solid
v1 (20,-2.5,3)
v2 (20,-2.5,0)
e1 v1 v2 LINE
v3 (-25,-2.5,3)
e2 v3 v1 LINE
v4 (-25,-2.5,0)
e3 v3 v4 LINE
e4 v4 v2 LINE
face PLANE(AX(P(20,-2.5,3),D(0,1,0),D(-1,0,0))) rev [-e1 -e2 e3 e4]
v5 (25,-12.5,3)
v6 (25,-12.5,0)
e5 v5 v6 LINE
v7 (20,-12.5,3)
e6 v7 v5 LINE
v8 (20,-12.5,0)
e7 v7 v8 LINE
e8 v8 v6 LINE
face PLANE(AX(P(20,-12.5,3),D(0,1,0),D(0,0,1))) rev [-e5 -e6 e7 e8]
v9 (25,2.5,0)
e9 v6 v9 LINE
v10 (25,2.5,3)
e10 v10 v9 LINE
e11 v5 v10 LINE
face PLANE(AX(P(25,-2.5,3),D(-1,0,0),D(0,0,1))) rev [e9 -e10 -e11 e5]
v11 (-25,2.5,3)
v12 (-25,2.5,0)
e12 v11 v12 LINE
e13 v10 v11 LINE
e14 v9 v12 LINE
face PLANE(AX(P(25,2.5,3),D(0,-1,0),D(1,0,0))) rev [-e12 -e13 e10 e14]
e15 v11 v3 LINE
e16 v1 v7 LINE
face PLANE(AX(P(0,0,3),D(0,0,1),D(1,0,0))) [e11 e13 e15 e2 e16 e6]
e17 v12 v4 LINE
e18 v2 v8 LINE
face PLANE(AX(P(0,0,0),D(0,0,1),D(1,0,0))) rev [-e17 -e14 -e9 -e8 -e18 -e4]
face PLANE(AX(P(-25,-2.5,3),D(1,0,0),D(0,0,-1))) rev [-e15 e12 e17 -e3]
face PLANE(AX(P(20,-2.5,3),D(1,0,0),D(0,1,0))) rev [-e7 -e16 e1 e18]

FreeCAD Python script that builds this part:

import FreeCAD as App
import Part
import Sketcher
from FreeCAD import Vector

doc = App.newDocument("Part")
body = doc.addObject("PartDesign::Body", "Body")

# Sketch on XY plane
sketch1 = doc.addObject("Sketcher::SketchObject", "Sketch")
body.addObject(sketch1)
sketch1.AttachmentSupport = (doc.XY_Plane, [""])
sketch1.MapMode = "FlatFace"
sketch1.addGeometry(Part.LineSegment(Vector(-25, -2, 0), Vector(20, -2, 0)), False)
sketch1.addGeometry(Part.LineSegment(Vector(20, -2, 0), Vector(20, -12, 0)), False)
sketch1.addGeometry(Part.LineSegment(Vector(20, -12, 0), Vector(25, -12, 0)), False)
sketch1.addGeometry(Part.LineSegment(Vector(25, -12, 0), Vector(25, 2, 0)), False)
sketch1.addGeometry(Part.LineSegment(Vector(25, 2, 0), Vector(-25, 2, 0)), False)
sketch1.addGeometry(Part.LineSegment(Vector(-25, 2, 0), Vector(-25, -2, 0)), False)
sketch1.addConstraint(Sketcher.Constraint("Coincident", 0, 2, 1, 1))
sketch1.addConstraint(Sketcher.Constraint("Coincident", 1, 2, 2, 1))
sketch1.addConstraint(Sketcher.Constraint("Coincident", 2, 2, 3, 1))
sketch1.addConstraint(Sketcher.Constraint("Coincident", 3, 2, 4, 1))
sketch1.addConstraint(Sketcher.Constraint("Coincident", 4, 2, 5, 1))
sketch1.addConstraint(Sketcher.Constraint("Coincident", 5, 2, 0, 1))
sketch1.addConstraint(Sketcher.Constraint("Horizontal", 0))
sketch1.addConstraint(Sketcher.Constraint("Vertical", 1))
sketch1.addConstraint(Sketcher.Constraint("Horizontal", 2))
sketch1.addConstraint(Sketcher.Constraint("Vertical", 3))
sketch1.addConstraint(Sketcher.Constraint("Horizontal", 4))
sketch1.addConstraint(Sketcher.Constraint("Vertical", 5))
sketch1.addConstraint(Sketcher.Constraint("Symmetric", 3, 2, 5, 2, -1, 1))
sketch1.addConstraint(Sketcher.Constraint("Equal", 2, 5))
sketch1.addConstraint(Sketcher.Constraint("DistanceX", 0, 1, 0, 2, 45.0))
sketch1.addConstraint(Sketcher.Constraint("DistanceX", 2, 1, 2, 2, 5.0))
sketch1.addConstraint(Sketcher.Constraint("DistanceY", 1, 2, 1, 1, 10.0))
pad1 = doc.addObject("PartDesign::Pad", "Pad")
body.addObject(pad1)
pad1.Profile = sketch1
pad1.Length = 3

doc.recompute()
